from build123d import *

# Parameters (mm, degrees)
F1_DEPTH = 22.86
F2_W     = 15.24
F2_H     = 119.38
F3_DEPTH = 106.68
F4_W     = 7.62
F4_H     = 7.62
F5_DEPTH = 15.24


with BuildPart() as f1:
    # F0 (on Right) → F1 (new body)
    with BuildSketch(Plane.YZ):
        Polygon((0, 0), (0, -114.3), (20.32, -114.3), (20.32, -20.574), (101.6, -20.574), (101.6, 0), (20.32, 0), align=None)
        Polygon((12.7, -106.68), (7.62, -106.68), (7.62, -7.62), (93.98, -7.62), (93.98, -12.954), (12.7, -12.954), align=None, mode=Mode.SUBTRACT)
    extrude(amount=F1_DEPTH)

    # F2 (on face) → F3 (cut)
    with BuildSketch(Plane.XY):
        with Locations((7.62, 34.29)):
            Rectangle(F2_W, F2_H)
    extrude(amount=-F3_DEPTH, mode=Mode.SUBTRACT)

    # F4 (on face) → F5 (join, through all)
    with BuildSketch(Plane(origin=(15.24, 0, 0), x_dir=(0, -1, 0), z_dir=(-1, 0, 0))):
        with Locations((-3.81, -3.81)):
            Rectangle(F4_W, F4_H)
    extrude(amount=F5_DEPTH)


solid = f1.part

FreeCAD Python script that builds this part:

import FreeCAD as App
import Part
import Sketcher

V = App.Vector
Q = App.Units.Quantity

doc = App.newDocument("Part")
body = doc.addObject("PartDesign::Body", "Body")

sketch1 = doc.addObject("Sketcher::SketchObject", "Sketch")
body.addObject(sketch1)
sketch1.AttachmentSupport = (doc.YZ_Plane, [""])
sketch1.MapMode = "FlatFace"
sketch1.addGeometry(Part.LineSegment(V(0, 0, 0), V(0, -114, 0)), False)
sketch1.addGeometry(Part.LineSegment(V(0, -114, 0), V(20, -114, 0)), False)
sketch1.addGeometry(Part.LineSegment(V(20, -114, 0), V(20, -21, 0)), False)
sketch1.addGeometry(Part.LineSegment(V(20, -21, 0), V(102, -21, 0)), False)
sketch1.addGeometry(Part.LineSegment(V(102, -21, 0), V(102, 0, 0)), False)
sketch1.addGeometry(Part.LineSegment(V(102, 0, 0), V(0, 0, 0)), False)
sketch1.addGeometry(Part.LineSegment(V(13, -13, 0), V(13, -107, 0)), False)
sketch1.addGeometry(Part.LineSegment(V(13, -107, 0), V(8, -107, 0)), False)
sketch1.addGeometry(Part.LineSegment(V(8, -107, 0), V(8, -8, 0)), False)
sketch1.addGeometry(Part.LineSegment(V(8, -8, 0), V(94, -8, 0)), False)
sketch1.addGeometry(Part.LineSegment(V(94, -8, 0), V(94, -13, 0)), False)
sketch1.addGeometry(Part.LineSegment(V(94, -13, 0), V(13, -13, 0)), False)
sketch1.addConstraint(Sketcher.Constraint("Coincident", 0, 2, 1, 1))
sketch1.addConstraint(Sketcher.Constraint("Coincident", 1, 2, 2, 1))
sketch1.addConstraint(Sketcher.Constraint("Coincident", 2, 2, 3, 1))
sketch1.addConstraint(Sketcher.Constraint("Coincident", 3, 2, 4, 1))
sketch1.addConstraint(Sketcher.Constraint("Coincident", 4, 2, 5, 1))
sketch1.addConstraint(Sketcher.Constraint("Coincident", 5, 2, 0, 1))
sketch1.addConstraint(Sketcher.Constraint("Coincident", 6, 2, 7, 1))
sketch1.addConstraint(Sketcher.Constraint("Coincident", 7, 2, 8, 1))
sketch1.addConstraint(Sketcher.Constraint("Coincident", 8, 2, 9, 1))
sketch1.addConstraint(Sketcher.Constraint("Coincident", 9, 2, 10, 1))
sketch1.addConstraint(Sketcher.Constraint("Coincident", 10, 2, 11, 1))
sketch1.addConstraint(Sketcher.Constraint("Coincident", 11, 2, 6, 1))
sketch1.addConstraint(Sketcher.Constraint("Vertical", 0))
sketch1.addConstraint(Sketcher.Constraint("Horizontal", 1))
sketch1.addConstraint(Sketcher.Constraint("Vertical", 2))
sketch1.addConstraint(Sketcher.Constraint("Horizontal", 3))
sketch1.addConstraint(Sketcher.Constraint("Vertical", 4))
sketch1.addConstraint(Sketcher.Constraint("Horizontal", 5))
sketch1.addConstraint(Sketcher.Constraint("Vertical", 6))
sketch1.addConstraint(Sketcher.Constraint("Horizontal", 7))
sketch1.addConstraint(Sketcher.Constraint("Vertical", 8))
sketch1.addConstraint(Sketcher.Constraint("Horizontal", 9))
sketch1.addConstraint(Sketcher.Constraint("Vertical", 10))
sketch1.addConstraint(Sketcher.Constraint("Horizontal", 11))
sketch1.addConstraint(Sketcher.Constraint("Coincident", 5, 2, -1, 1))
sketch1.addConstraint(Sketcher.Constraint("Equal", 3, 11))
sketch1.addConstraint(Sketcher.Constraint("Equal", 2, 6))
sketch1.addConstraint(Sketcher.Constraint("DistanceX", 5, 2, 5, 1, Q("4 in")))
sketch1.addConstraint(Sketcher.Constraint("DistanceX", 1, 1, 1, 2, Q("0.8 in")))
sketch1.addConstraint(Sketcher.Constraint("DistanceX", 7, 2, 7, 1, Q("0.2 in")))
sketch1.addConstraint(Sketcher.Constraint("DistanceY", 0, 2, 0, 1, Q("4.5 in")))
sketch1.addConstraint(Sketcher.Constraint("DistanceY", 8, 1, 8, 2, Q("3.9 in")))
sketch1.addConstraint(Sketcher.Constraint("DistanceY", 2, 1, 2, 2, Q("3.69 in")))
sketch1.addConstraint(Sketcher.Constraint("DistanceX", -1, 1, 6, 2, Q("0.5 in")))
sketch1.addConstraint(Sketcher.Constraint("DistanceY", 6, 2, -1, 1, Q("4.2 in")))
pad1 = doc.addObject("PartDesign::Pad", "Pad")
body.addObject(pad1)
pad1.Profile = sketch1
pad1.Length = Q("0.9 in")

sketch2 = doc.addObject("Sketcher::SketchObject", "Sketch001")
body.addObject(sketch2)
sketch2.AttachmentSupport = (doc.XY_Plane, [""])
sketch2.MapMode = "FlatFace"
sketch2.addGeometry(Part.LineSegment(V(0, 94, 0), V(0, -25, 0)), False)
sketch2.addGeometry(Part.LineSegment(V(0, -25, 0), V(15, -25, 0)), False)
sketch2.addGeometry(Part.LineSegment(V(15, -25, 0), V(15, 94, 0)), False)
sketch2.addGeometry(Part.LineSegment(V(15, 94, 0), V(0, 94, 0)), False)
sketch2.addConstraint(Sketcher.Constraint("Coincident", 0, 2, 1, 1))
sketch2.addConstraint(Sketcher.Constraint("Coincident", 1, 2, 2, 1))
sketch2.addConstraint(Sketcher.Constraint("Coincident", 2, 2, 3, 1))
sketch2.addConstraint(Sketcher.Constraint("Coincident", 3, 2, 0, 1))
sketch2.addConstraint(Sketcher.Constraint("Vertical", 0))
sketch2.addConstraint(Sketcher.Constraint("Horizontal", 1))
sketch2.addConstraint(Sketcher.Constraint("Vertical", 2))
sketch2.addConstraint(Sketcher.Constraint("Horizontal", 3))
sketch2.addConstraint(Sketcher.Constraint("PointOnObject", 0, 2, -2))
sketch2.addConstraint(Sketcher.Constraint("DistanceX", 1, 1, 1, 2, Q("0.6 in")))
sketch2.addConstraint(Sketcher.Constraint("DistanceY", 0, 2, 0, 1, Q("4.7 in")))
sketch2.addConstraint(Sketcher.Constraint("DistanceY", 0, 2, -1, 1, Q("1 in")))
pocket1 = doc.addObject("PartDesign::Pocket", "Pocket")
body.addObject(pocket1)
pocket1.Profile = sketch2
pocket1.Length = Q("4.2 in")

sketch3 = doc.addObject("Sketcher::SketchObject", "Sketch002")
body.addObject(sketch3)
sketch3.AttachmentSupport = (doc.YZ_Plane, [""])
sketch3.MapMode = "FlatFace"
sketch3.AttachmentOffset = App.Placement(V(0, 0, 0.6 * 25.4), App.Rotation())
sketch3.addGeometry(Part.LineSegment(V(8, 0, 0), V(8, -8, 0)), False)
sketch3.addGeometry(Part.LineSegment(V(8, -8, 0), V(0, -8, 0)), False)
sketch3.addGeometry(Part.LineSegment(V(0, -8, 0), V(0, 0, 0)), False)
sketch3.addGeometry(Part.LineSegment(V(0, 0, 0), V(8, 0, 0)), False)
sketch3.addConstraint(Sketcher.Constraint("Coincident", 0, 2, 1, 1))
sketch3.addConstraint(Sketcher.Constraint("Coincident", 1, 2, 2, 1))
sketch3.addConstraint(Sketcher.Constraint("Coincident", 2, 2, 3, 1))
sketch3.addConstraint(Sketcher.Constraint("Coincident", 3, 2, 0, 1))
sketch3.addConstraint(Sketcher.Constraint("Vertical", 0))
sketch3.addConstraint(Sketcher.Constraint("Horizontal", 1))
sketch3.addConstraint(Sketcher.Constraint("Vertical", 2))
sketch3.addConstraint(Sketcher.Constraint("Horizontal", 3))
sketch3.addConstraint(Sketcher.Constraint("Coincident", 2, 2, -1, 1))
sketch3.addConstraint(Sketcher.Constraint("Equal", 3, 0))
sketch3.addConstraint(Sketcher.Constraint("DistanceX", 1, 2, 1, 1, Q("0.3 in")))
pad2 = doc.addObject("PartDesign::Pad", "Pad001")
body.addObject(pad2)
pad2.Profile = sketch3
pad2.Length = Q("0.6 in")
pad2.Reversed = True

doc.recompute()
